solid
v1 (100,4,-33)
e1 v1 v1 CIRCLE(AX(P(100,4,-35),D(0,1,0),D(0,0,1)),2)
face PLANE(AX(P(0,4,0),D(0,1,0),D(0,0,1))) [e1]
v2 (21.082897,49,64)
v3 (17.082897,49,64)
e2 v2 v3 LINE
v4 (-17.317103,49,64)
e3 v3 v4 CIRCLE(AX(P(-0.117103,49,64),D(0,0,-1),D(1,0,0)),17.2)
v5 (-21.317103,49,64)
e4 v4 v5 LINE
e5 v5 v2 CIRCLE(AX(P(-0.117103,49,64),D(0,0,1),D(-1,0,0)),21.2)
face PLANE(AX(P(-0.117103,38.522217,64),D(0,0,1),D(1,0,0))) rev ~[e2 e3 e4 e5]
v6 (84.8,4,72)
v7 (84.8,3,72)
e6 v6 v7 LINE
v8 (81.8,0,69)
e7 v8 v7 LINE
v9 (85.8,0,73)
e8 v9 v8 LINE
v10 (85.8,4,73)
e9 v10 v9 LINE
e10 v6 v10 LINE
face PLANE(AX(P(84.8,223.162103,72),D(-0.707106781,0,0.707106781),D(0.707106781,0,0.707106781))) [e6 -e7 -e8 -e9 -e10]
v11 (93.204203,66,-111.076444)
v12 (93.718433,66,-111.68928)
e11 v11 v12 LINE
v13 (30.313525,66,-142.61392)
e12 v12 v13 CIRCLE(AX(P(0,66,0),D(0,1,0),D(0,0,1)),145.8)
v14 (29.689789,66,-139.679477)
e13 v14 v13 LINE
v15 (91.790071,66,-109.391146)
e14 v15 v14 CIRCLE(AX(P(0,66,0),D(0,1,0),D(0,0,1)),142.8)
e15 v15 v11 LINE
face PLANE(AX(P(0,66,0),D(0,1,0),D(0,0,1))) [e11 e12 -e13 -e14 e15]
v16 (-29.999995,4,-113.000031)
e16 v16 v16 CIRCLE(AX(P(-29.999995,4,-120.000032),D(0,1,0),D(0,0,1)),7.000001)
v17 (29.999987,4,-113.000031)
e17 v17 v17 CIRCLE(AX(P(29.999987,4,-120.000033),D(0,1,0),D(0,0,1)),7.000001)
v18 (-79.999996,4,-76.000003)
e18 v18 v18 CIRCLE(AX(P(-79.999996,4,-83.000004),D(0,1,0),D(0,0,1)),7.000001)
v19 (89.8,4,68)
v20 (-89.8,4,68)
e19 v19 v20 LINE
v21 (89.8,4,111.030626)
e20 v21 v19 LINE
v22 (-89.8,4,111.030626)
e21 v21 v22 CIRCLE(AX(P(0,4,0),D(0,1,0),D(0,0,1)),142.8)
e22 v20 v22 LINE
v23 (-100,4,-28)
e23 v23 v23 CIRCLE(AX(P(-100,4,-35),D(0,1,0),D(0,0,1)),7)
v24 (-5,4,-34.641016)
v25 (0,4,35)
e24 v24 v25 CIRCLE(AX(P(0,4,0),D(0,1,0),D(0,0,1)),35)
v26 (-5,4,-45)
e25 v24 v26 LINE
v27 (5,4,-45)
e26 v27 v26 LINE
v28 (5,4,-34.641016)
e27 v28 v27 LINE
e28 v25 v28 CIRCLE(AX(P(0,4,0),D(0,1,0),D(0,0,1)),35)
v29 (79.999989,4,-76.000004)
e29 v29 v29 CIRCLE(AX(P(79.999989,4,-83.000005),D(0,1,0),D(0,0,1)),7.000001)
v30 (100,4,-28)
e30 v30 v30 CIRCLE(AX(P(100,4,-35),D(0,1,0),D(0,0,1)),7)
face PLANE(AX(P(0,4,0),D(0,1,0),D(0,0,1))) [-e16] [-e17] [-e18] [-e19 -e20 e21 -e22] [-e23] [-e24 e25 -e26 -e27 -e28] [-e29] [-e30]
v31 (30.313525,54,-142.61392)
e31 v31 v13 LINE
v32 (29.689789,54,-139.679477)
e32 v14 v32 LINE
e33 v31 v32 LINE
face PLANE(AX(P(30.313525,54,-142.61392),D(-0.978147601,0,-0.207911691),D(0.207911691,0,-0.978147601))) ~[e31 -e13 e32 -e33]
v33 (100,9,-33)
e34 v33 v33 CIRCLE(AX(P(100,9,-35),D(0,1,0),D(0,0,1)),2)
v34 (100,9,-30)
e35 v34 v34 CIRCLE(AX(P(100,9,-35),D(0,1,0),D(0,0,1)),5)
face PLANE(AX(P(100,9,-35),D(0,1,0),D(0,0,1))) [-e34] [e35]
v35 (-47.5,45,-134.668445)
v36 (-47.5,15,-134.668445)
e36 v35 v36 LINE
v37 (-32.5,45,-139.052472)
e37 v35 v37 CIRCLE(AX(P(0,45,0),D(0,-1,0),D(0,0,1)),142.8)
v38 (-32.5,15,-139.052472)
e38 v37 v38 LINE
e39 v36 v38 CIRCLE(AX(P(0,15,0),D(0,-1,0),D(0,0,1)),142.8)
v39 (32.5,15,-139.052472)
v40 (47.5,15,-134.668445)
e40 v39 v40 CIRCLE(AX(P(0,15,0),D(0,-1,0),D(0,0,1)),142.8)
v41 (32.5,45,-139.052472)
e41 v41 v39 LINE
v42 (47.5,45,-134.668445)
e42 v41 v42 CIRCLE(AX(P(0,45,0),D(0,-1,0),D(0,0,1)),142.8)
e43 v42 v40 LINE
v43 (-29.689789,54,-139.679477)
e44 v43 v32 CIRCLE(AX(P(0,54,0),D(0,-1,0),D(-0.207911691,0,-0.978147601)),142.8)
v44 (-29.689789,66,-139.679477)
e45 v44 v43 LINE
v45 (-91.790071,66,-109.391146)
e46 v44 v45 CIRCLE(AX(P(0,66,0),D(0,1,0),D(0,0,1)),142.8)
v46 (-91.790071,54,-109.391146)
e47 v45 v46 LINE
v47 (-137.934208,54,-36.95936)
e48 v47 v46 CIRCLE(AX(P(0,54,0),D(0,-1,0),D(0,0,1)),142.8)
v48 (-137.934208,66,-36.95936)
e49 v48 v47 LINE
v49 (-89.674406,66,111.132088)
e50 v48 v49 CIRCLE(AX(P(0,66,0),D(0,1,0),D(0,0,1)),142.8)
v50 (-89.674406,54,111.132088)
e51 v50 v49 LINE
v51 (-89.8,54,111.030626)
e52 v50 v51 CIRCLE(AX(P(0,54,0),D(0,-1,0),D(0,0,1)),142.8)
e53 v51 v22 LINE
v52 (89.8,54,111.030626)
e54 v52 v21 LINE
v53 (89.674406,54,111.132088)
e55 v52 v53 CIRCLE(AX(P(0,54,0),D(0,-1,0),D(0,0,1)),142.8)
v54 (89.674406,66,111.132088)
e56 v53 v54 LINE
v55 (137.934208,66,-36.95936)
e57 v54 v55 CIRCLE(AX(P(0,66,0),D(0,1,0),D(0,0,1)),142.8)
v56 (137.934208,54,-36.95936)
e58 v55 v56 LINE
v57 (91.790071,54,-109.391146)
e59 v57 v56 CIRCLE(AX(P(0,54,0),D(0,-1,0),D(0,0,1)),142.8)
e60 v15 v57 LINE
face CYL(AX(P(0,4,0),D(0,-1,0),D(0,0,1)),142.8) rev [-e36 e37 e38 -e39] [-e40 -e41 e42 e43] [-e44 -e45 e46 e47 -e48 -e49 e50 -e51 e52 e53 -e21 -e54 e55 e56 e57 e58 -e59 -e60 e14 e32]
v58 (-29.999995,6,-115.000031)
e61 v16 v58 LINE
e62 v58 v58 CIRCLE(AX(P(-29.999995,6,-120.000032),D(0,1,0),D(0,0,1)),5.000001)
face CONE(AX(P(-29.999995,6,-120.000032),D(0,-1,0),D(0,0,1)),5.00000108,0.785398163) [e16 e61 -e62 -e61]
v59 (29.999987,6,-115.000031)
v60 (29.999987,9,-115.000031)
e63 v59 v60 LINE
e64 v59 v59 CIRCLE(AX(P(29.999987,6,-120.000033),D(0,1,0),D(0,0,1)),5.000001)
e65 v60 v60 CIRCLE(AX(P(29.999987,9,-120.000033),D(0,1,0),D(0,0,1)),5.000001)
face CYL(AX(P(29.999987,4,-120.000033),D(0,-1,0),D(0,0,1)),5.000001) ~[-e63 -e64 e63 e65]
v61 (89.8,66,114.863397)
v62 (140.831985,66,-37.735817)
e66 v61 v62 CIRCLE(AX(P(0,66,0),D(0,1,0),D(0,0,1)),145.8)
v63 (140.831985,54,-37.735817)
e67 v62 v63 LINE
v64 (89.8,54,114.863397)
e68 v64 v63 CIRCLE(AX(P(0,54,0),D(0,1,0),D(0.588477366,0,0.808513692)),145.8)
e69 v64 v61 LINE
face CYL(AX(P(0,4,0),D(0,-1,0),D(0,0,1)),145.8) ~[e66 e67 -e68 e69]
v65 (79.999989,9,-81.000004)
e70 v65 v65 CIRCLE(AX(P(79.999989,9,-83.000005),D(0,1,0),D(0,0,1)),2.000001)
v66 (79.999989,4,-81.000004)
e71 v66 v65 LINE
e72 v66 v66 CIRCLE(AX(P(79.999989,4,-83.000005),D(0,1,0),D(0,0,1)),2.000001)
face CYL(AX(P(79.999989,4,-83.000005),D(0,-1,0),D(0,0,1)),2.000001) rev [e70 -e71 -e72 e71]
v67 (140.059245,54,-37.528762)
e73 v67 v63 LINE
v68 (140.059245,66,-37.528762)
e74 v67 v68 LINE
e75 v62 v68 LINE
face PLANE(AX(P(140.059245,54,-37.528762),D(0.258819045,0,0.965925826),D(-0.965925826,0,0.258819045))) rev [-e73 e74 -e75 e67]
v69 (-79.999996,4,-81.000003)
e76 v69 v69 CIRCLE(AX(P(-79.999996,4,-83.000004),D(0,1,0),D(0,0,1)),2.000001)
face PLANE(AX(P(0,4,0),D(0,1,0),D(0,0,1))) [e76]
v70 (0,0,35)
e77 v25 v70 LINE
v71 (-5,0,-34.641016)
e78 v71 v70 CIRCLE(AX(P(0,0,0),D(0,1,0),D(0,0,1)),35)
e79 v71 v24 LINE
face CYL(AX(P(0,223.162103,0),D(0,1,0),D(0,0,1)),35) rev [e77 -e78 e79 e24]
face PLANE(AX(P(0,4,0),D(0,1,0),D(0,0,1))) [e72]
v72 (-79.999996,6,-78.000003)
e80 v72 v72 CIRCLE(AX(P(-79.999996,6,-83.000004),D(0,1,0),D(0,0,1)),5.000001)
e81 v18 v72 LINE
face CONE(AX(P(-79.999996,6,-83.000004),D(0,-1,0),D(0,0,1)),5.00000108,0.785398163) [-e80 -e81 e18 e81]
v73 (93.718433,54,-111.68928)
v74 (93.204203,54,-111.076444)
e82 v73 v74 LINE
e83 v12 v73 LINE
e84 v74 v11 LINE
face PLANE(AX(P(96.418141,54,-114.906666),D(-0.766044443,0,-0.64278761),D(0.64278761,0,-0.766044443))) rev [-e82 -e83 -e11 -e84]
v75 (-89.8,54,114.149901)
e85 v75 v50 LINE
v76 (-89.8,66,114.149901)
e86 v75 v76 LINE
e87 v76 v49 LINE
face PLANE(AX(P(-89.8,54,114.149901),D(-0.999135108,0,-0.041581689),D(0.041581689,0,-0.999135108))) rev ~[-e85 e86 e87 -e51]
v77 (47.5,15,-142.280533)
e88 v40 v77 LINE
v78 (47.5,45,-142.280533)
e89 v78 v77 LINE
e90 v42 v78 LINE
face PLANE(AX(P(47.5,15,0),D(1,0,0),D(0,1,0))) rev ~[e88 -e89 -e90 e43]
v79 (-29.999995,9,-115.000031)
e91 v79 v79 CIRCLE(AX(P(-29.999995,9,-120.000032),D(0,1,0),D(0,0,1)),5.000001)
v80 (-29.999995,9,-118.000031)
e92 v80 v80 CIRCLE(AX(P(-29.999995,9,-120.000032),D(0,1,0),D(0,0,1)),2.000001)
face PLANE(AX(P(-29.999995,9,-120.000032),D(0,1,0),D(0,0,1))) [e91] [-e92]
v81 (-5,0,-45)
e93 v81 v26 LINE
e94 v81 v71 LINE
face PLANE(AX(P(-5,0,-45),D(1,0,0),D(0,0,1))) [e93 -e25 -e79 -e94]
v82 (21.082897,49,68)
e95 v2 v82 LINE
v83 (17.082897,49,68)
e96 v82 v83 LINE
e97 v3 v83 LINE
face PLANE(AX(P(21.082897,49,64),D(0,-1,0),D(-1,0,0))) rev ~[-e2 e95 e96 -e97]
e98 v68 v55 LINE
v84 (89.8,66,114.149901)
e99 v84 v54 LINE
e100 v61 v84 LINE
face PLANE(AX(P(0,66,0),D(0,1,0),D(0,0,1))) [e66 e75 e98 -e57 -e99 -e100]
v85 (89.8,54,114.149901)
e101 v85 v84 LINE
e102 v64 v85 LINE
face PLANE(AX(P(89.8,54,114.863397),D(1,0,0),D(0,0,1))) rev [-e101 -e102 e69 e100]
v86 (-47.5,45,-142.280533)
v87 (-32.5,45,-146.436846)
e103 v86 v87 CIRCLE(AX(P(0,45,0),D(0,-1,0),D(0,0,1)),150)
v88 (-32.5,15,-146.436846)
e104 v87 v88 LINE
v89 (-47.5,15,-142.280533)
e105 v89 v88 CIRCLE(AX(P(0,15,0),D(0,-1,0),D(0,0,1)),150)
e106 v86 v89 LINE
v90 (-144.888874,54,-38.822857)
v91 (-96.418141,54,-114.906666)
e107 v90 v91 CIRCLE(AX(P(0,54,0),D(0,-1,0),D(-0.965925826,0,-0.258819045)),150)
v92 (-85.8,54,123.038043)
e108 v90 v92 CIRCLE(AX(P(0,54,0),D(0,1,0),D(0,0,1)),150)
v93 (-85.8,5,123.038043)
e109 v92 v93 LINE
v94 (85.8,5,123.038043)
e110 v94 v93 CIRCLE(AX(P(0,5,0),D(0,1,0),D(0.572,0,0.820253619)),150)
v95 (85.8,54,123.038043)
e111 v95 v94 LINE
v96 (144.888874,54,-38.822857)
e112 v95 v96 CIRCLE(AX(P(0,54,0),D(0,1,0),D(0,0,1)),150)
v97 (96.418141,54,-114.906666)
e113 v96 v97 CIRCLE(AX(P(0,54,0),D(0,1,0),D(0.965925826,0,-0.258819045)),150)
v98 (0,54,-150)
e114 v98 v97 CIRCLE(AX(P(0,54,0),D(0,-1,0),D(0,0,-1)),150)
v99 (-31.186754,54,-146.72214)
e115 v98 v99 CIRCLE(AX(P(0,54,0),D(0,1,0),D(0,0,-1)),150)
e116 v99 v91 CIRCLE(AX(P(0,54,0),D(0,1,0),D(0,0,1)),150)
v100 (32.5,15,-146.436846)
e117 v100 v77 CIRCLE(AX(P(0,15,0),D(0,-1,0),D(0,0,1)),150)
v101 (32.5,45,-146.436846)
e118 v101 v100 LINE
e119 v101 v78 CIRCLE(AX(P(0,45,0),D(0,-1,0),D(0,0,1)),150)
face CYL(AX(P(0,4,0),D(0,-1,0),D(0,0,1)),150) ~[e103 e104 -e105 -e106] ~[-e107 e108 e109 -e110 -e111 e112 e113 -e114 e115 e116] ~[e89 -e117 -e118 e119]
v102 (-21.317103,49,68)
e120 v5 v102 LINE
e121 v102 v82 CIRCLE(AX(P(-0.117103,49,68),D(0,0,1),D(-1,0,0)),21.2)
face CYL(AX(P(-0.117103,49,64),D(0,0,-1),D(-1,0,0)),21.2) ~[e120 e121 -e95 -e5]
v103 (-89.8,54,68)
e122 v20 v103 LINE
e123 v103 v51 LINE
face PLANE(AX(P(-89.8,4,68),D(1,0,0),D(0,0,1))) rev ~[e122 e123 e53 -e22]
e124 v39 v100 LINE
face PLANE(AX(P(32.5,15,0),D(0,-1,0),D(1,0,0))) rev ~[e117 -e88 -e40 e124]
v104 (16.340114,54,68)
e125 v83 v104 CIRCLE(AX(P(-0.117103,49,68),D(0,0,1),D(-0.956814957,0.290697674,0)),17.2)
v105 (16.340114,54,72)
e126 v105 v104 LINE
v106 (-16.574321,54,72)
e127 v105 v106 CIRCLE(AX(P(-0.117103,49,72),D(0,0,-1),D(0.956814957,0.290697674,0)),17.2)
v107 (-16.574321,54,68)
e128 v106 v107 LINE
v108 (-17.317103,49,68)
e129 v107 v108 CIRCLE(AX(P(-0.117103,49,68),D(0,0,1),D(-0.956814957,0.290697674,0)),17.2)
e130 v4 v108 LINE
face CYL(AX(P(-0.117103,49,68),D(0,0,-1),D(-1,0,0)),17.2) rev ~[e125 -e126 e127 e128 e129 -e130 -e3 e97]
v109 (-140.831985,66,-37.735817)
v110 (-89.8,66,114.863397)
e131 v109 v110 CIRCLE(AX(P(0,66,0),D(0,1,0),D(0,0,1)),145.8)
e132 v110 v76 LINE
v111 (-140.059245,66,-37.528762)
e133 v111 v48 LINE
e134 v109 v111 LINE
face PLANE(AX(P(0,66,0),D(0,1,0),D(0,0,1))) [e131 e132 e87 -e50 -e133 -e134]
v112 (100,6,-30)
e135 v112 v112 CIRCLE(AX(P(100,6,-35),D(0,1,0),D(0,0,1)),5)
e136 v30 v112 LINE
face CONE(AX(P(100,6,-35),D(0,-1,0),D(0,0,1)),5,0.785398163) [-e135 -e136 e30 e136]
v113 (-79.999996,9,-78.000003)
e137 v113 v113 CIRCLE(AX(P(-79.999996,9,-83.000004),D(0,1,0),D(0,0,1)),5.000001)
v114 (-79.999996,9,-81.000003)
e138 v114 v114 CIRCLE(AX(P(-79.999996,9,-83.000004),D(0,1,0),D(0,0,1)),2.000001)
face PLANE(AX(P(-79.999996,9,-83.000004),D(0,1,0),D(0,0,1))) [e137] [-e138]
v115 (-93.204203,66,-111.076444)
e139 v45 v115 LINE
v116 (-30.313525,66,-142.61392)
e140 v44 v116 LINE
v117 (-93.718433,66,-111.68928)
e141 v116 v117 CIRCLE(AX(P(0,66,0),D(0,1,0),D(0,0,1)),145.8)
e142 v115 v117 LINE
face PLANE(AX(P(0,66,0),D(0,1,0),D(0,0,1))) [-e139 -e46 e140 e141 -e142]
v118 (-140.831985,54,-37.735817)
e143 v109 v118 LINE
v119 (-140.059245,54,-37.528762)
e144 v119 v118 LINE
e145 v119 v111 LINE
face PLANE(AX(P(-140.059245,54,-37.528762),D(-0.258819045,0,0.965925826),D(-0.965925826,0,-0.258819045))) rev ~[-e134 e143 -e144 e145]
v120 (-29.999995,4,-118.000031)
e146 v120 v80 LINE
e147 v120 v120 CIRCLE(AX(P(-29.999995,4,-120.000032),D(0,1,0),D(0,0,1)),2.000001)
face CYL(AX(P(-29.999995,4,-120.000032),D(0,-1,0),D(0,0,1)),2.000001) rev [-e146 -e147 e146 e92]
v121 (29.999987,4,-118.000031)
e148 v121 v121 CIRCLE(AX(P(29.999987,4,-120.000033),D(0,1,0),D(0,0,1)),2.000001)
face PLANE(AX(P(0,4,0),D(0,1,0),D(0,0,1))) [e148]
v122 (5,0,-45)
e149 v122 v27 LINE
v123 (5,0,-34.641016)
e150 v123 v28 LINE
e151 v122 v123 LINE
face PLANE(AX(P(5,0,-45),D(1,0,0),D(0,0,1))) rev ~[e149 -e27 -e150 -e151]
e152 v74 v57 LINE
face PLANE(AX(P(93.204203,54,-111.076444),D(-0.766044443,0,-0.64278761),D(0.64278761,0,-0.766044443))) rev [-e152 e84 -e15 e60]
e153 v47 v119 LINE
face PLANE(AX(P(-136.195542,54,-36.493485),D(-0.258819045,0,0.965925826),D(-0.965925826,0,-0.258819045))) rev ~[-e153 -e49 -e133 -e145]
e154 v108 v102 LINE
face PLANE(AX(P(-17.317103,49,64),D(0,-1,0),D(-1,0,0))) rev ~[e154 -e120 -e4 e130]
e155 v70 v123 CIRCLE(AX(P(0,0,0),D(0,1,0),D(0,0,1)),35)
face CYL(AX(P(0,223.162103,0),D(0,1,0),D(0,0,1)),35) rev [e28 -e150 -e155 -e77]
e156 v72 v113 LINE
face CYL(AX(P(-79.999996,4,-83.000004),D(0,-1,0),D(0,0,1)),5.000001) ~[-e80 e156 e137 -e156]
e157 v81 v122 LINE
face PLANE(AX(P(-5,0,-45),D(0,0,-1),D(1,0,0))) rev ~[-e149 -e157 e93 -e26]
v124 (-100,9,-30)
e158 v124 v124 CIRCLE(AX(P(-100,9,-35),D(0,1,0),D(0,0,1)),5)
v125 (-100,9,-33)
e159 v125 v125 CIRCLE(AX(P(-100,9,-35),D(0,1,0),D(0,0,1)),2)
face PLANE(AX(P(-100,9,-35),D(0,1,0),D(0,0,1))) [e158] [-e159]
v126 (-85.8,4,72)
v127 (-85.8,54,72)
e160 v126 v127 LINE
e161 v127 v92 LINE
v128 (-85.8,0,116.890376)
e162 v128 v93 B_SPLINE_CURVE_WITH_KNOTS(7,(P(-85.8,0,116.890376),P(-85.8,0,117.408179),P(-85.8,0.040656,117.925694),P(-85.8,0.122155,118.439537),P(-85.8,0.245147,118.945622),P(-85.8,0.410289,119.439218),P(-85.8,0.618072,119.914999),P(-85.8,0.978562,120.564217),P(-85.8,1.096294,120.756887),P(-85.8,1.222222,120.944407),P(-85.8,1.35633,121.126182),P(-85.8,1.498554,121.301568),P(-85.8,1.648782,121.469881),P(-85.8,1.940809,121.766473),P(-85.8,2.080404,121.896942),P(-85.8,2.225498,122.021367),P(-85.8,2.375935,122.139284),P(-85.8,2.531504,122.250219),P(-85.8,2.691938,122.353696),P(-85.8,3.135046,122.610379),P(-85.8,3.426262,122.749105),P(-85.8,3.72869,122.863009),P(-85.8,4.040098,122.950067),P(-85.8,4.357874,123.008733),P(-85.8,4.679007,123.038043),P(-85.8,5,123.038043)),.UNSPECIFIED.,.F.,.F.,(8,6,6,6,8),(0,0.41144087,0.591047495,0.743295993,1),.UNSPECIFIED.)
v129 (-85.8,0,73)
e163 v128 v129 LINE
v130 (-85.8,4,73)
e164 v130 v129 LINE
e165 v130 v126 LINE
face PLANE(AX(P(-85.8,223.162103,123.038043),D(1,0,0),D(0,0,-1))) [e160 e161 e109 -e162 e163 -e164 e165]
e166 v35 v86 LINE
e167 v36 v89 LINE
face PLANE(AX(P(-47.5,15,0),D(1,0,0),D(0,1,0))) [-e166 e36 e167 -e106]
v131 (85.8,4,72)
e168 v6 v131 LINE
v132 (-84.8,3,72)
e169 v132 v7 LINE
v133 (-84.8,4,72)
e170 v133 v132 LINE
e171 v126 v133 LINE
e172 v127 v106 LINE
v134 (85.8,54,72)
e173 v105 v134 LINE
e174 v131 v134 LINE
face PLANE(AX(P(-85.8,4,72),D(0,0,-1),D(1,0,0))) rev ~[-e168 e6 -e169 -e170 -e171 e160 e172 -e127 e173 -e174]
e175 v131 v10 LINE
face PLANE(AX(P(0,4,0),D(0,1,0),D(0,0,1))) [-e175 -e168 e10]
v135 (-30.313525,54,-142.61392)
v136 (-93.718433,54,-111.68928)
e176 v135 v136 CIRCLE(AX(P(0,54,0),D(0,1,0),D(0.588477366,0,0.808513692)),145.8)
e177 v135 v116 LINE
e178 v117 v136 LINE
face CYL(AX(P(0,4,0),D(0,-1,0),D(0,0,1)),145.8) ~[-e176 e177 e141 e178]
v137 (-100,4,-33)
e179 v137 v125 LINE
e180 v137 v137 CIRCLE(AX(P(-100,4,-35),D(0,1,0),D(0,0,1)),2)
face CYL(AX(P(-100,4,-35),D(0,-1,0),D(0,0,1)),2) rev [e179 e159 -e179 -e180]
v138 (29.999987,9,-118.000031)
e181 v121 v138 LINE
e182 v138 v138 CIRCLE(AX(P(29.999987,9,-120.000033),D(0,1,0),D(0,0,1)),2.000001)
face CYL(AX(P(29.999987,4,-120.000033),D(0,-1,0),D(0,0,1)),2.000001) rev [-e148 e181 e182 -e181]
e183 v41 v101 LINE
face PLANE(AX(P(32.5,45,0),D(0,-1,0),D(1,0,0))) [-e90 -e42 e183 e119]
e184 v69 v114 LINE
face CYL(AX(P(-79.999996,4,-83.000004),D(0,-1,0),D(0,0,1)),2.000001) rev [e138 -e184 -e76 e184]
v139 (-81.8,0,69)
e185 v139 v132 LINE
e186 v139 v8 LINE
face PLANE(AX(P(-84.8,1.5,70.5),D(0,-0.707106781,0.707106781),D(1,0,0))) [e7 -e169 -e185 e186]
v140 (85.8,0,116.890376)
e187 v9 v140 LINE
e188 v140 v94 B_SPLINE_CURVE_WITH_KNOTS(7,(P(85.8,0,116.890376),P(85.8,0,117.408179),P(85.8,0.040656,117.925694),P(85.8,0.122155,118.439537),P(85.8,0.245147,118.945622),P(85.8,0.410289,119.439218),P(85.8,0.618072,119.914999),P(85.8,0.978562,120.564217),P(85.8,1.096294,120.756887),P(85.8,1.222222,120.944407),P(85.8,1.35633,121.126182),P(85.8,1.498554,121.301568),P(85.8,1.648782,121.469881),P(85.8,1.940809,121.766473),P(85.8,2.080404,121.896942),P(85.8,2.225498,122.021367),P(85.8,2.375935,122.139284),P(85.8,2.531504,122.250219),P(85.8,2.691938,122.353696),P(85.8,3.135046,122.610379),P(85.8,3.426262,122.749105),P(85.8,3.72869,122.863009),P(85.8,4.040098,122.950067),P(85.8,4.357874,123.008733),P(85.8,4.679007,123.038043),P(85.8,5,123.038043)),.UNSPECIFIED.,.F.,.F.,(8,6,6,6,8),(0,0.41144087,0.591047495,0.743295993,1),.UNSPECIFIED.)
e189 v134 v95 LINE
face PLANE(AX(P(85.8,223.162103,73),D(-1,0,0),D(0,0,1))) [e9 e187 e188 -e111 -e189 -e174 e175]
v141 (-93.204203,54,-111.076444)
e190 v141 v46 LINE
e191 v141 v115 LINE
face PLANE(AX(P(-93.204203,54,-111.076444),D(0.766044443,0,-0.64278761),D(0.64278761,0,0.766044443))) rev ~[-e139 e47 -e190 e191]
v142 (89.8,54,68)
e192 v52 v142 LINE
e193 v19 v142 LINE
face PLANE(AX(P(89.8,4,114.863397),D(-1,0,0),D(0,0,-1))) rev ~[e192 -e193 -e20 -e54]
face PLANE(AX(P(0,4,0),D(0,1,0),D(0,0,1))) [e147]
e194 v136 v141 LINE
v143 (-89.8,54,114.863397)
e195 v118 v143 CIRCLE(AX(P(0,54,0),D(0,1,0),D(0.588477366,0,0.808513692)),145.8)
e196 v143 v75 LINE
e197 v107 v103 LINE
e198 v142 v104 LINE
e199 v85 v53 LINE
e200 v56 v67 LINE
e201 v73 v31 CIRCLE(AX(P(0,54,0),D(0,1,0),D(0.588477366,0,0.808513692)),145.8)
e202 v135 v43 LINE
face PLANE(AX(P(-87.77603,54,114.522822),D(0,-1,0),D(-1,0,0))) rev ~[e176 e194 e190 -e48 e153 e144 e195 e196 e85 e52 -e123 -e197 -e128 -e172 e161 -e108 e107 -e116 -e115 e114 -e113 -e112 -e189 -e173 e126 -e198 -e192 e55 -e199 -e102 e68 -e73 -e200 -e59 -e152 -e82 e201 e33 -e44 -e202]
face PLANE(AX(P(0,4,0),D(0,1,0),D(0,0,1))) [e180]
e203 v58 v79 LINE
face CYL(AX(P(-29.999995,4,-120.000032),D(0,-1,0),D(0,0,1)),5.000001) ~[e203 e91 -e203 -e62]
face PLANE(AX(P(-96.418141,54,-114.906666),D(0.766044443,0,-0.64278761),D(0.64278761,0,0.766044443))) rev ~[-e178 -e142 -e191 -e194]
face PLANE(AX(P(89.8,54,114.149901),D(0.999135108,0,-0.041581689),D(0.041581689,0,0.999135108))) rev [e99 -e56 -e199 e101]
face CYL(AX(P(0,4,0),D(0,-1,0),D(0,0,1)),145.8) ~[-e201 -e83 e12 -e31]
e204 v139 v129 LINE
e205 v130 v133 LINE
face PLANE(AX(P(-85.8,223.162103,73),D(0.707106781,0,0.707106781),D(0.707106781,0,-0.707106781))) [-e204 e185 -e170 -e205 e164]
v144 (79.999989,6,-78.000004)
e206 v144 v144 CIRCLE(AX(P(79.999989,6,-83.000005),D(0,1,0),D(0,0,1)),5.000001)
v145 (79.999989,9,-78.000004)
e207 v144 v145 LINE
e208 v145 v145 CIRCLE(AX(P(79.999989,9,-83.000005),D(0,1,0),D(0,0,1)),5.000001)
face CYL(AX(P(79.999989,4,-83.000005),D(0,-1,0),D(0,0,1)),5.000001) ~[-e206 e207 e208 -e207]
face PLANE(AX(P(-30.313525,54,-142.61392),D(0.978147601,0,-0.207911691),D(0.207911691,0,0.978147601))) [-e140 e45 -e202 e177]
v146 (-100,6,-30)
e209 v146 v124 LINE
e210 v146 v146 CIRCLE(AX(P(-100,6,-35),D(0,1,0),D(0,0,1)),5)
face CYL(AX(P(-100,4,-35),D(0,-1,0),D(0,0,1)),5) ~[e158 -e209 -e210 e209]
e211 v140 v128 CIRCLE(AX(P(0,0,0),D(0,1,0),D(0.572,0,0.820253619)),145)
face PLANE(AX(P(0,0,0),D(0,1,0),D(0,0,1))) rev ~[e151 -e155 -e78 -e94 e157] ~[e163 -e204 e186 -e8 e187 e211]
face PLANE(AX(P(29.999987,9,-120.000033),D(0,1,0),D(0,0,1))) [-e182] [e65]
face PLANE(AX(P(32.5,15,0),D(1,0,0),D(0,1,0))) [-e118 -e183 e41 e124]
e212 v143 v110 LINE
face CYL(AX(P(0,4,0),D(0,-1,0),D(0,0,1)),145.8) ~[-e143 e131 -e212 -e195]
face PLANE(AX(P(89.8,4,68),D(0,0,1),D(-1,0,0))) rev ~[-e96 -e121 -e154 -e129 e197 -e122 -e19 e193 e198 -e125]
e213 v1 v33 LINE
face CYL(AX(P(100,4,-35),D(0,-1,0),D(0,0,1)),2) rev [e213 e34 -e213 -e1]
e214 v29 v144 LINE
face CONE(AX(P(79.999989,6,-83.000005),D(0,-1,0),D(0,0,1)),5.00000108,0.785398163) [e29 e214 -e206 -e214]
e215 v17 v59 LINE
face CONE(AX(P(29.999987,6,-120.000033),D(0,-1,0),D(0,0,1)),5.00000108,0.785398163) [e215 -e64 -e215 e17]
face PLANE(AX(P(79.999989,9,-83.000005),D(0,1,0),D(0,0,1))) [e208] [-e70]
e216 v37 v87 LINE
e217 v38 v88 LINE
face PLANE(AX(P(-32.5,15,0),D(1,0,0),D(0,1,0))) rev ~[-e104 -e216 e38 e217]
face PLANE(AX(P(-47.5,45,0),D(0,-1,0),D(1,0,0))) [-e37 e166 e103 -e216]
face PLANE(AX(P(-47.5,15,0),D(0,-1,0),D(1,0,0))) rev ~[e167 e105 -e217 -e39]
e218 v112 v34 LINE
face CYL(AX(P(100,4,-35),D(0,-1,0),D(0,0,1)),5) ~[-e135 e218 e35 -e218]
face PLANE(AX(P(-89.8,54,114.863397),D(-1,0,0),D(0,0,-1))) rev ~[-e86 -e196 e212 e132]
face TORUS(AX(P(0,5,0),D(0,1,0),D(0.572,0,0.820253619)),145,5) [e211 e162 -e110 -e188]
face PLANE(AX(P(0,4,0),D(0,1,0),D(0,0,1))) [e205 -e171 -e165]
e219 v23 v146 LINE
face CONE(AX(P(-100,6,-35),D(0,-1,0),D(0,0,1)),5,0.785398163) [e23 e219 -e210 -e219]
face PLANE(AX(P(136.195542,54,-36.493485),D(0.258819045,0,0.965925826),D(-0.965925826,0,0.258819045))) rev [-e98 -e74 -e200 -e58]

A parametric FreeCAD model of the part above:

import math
import FreeCAD as App
import Part
import Sketcher

V = App.Vector
Q = App.Units.Quantity


def edges_at(feature, points):
    """Names of the edges that pass closest to the given points."""
    edges = feature.Shape.Edges
    near = lambda p: min(range(len(edges)), key=lambda i: edges[i].distToShape(Part.Vertex(*p))[0])
    return sorted({f"Edge{near(p) + 1}" for p in points})


def add_polygon(sketch, points):
    """Adds a closed chain of lines whose ends are joined by coincident constraints."""
    first, n = sketch.GeometryCount, len(points)
    for a, b in zip(points, points[1:] + points[:1]):
        sketch.addGeometry(Part.LineSegment(App.Vector(*a, 0), App.Vector(*b, 0)), False)
    for i in range(n):
        sketch.addConstraint(Sketcher.Constraint("Coincident", first + i, 2, first + (i + 1) % n, 1))

doc = App.newDocument("Part")
params = doc.addObject("Spreadsheet::Sheet", "Params")
for row, (alias, value) in enumerate([
    ("sketch1_diameter", "300 mm"),
    ("pad1_length", "4 mm"),
    ("sketch2_diameter", "300 mm"),
    ("sketch2_diameter2", "291.6 mm"),
    ("pad2_length", "50 mm"),
    ("sketch3_diameter", "291.6 mm"),
    ("sketch3_diameter2", "285.6 mm"),
    ("pad3_length", "62 mm"),
    ("sketch4_radius", "150 mm"),
    ("sketch4_width", "169.6 mm"),
    ("sketch5_radius", "145.800002 mm"),
    ("sketch5_width", "171.6 mm"),
    ("sketch5_width2", "179.6 mm"),
    ("pad4_length", "50 mm"),
    ("sketch6_radius", "145.800002 mm"),
    ("pocket2_length", "12 mm"),
    ("fillet_radius", "5 mm"),
    ("sketch7_diameter", "70 mm"),
    ("sketch8_radius", "150 mm"),
    ("sketch8_radius2", "142 mm"),
    ("sketch8_radius3", "141 mm"),
    ("sketch8_length", "4 mm"),
    ("sketch8_length2", "4.2 mm"),
    ("pocket4_length", "25 mm"),
    ("sketch9_width", "10 mm"),
    ("sketch9_height", "20 mm"),
    ("pocket5_length", "25 mm"),
    ("sketch10_diameter", "34.4 mm"),
    ("pocket6_length", "25 mm"),
    ("sketch11_radius", "17.2 mm"),
    ("sketch11_radius2", "21.2 mm"),
    ("pad5_length", "4 mm"),
    ("sketch12_diameter", "10 mm"),
    ("sketch12_diameter2", "4 mm"),
    ("pad6_length", "5 mm"),
    ("chamfer_size", "2 mm"),
    ("chamfer2_size", "3 mm"),
    ("sketch13_width", "15 mm"),
    ("sketch13_height", "30 mm"),
], start=1):
    params.set(f"A{row}", alias)
    params.set(f"B{row}", "=" + value)
    params.setAlias(f"B{row}", alias)

body = doc.addObject("PartDesign::Body", "Body")

# Sketch on XZ plane
sketch1 = body.newObject("Sketcher::SketchObject", "Sketch")
sketch1.AttachmentSupport = (doc.getObject("XZ_Plane"), [""])
sketch1.MapMode = "FlatFace"
sketch1.addGeometry(Part.Circle(V(0, 0, 0), V(0, 0, 1), 150), False)
sketch1.addConstraint([
    Sketcher.Constraint("Coincident", 0, 3, -1, 1),
    Sketcher.Constraint("Diameter", 0, 300.0),
])
sketch1.setExpression("Constraints[1]", "Params.sketch1_diameter")
pad1 = body.newObject("PartDesign::Pad", "Pad")
pad1.Profile = sketch1
pad1.setExpression("Length", "Params.pad1_length")
pad1.Reversed = True

# Sketch on XZ plane
sketch2 = body.newObject("Sketcher::SketchObject", "Sketch001")
sketch2.AttachmentSupport = (doc.getObject("XZ_Plane"), [""])
sketch2.MapMode = "FlatFace"
sketch2.AttachmentOffset = App.Placement(V(0, 0, -4), App.Rotation())
sketch2.addGeometry([
    Part.Circle(V(0, 0, 0), V(0, 0, 1), 150),
    Part.Circle(V(0, 0, 0), V(0, 0, 1), 146),
], False)
sketch2.addConstraint([
    Sketcher.Constraint("Coincident", 0, 3, -1, 1),
    Sketcher.Constraint("Coincident", 1, 3, -1, 1),
    Sketcher.Constraint("Diameter", 0, 300.0),
    Sketcher.Constraint("Diameter", 1, 291.6),
])
sketch2.setExpression("Constraints[2]", "Params.sketch2_diameter")
sketch2.setExpression("Constraints[3]", "Params.sketch2_diameter2")
pad2 = body.newObject("PartDesign::Pad", "Pad001")
pad2.Profile = sketch2
pad2.setExpression("Length", "Params.pad2_length")
pad2.Reversed = True

# Sketch on XZ plane
sketch3 = body.newObject("Sketcher::SketchObject", "Sketch002")
sketch3.AttachmentSupport = (doc.getObject("XZ_Plane"), [""])
sketch3.MapMode = "FlatFace"
sketch3.AttachmentOffset = App.Placement(V(0, 0, -4), App.Rotation())
sketch3.addGeometry([
    Part.Circle(V(0, 0, 0), V(0, 0, 1), 146),
    Part.Circle(V(0, 0, 0), V(0, 0, 1), 143),
], False)
sketch3.addConstraint([
    Sketcher.Constraint("Coincident", 0, 3, -1, 1),
    Sketcher.Constraint("Coincident", 1, 3, -1, 1),
    Sketcher.Constraint("Diameter", 0, 291.6),
    Sketcher.Constraint("Diameter", 1, 285.6),
])
sketch3.setExpression("Constraints[2]", "Params.sketch3_diameter")
sketch3.setExpression("Constraints[3]", "Params.sketch3_diameter2")
pad3 = body.newObject("PartDesign::Pad", "Pad002")
pad3.Profile = sketch3
pad3.setExpression("Length", "Params.pad3_length")
pad3.Reversed = True

# Sketch on XZ plane
sketch4 = body.newObject("Sketcher::SketchObject", "Sketch003")
sketch4.AttachmentSupport = (doc.getObject("XZ_Plane"), [""])
sketch4.MapMode = "FlatFace"
sketch4.addGeometry([
    Part.LineSegment(V(85.8, 73, 0), V(85.8, 123, 0)),  # 0
    Part.ArcOfCircle(Part.Circle(V(0, 0, 0), V(0, 0, 1), 150), math.radians(55), math.radians(125)),  # 1
    Part.LineSegment(V(-85.8, 123, 0), V(-85.8, 73, 0)),  # 2
    Part.LineSegment(V(-85.8, 73, 0), V(-84.8, 72, 0)),  # 3
    Part.LineSegment(V(-84.8, 72, 0), V(84.8, 72, 0)),  # 4
    Part.LineSegment(V(84.8, 72, 0), V(85.8, 73, 0)),  # 5
], False)
sketch4.addConstraint([
    Sketcher.Constraint("Coincident", 0, 2, 1, 1),
    Sketcher.Constraint("Coincident", 1, 2, 2, 1),
    Sketcher.Constraint("Coincident", 2, 2, 3, 1),
    Sketcher.Constraint("Coincident", 3, 2, 4, 1),
    Sketcher.Constraint("Coincident", 4, 2, 5, 1),
    Sketcher.Constraint("Coincident", 5, 2, 0, 1),
    Sketcher.Constraint("Vertical", 0),
    Sketcher.Constraint("Vertical", 2),
    Sketcher.Constraint("Horizontal", 4),
    Sketcher.Constraint("Coincident", 1, 3, -1, 1),
    Sketcher.Constraint("Symmetric", 2, 2, 5, 2, -2),
    Sketcher.Constraint("Perpendicular", 3, 5),
    Sketcher.Constraint("Equal", 3, 5),
    Sketcher.Constraint("Radius", 1, 150.0),
    Sketcher.Constraint("DistanceX", 4, 1, 4, 2, 169.6),
    Sketcher.Constraint("DistanceY", -1, 1, 2, 2, 73.0),
    Sketcher.Constraint("DistanceY", -1, 1, 3, 2, 72.0),
])
sketch4.setExpression("Constraints[13]", "Params.sketch4_radius")
sketch4.setExpression("Constraints[14]", "Params.sketch4_width")
pocket1 = body.newObject("PartDesign::Pocket", "Pocket")
pocket1.Profile = sketch4
pocket1.Type = "ThroughAll"
pocket1.Midplane = True

# Sketch on XZ plane
sketch5 = body.newObject("Sketcher::SketchObject", "Sketch004")
sketch5.AttachmentSupport = (doc.getObject("XZ_Plane"), [""])
sketch5.MapMode = "FlatFace"
sketch5.AttachmentOffset = App.Placement(V(0, 0, -4), App.Rotation())
sketch5.addGeometry([
    Part.ArcOfCircle(Part.Circle(V(0, 0, 0), V(0, 0, 1), 146), math.radians(126.05), math.radians(128.02)),  # 0
    Part.LineSegment(V(-86, 118, 0), V(-86, 72, 0)),  # 1
    Part.LineSegment(V(-86, 72, 0), V(86, 72, 0)),  # 2
    Part.LineSegment(V(86, 72, 0), V(86, 118, 0)),  # 3
    Part.ArcOfCircle(Part.Circle(V(0, 0, 0), V(0, 0, 1), 146), math.radians(51.98), math.radians(53.95)),  # 4
    Part.LineSegment(V(90, 115, 0), V(90, 68, 0)),  # 5
    Part.LineSegment(V(90, 68, 0), V(-90, 68, 0)),  # 6
    Part.LineSegment(V(-90, 68, 0), V(-90, 115, 0)),  # 7
], False)
sketch5.addConstraint([
    Sketcher.Constraint("Coincident", 0, 1, 1, 1),
    Sketcher.Constraint("Coincident", 1, 2, 2, 1),
    Sketcher.Constraint("Coincident", 2, 2, 3, 1),
    Sketcher.Constraint("Coincident", 3, 2, 4, 2),
    Sketcher.Constraint("Coincident", 4, 1, 5, 1),
    Sketcher.Constraint("Coincident", 5, 2, 6, 1),
    Sketcher.Constraint("Coincident", 6, 2, 7, 1),
    Sketcher.Constraint("Coincident", 7, 2, 0, 2),
    Sketcher.Constraint("Vertical", 1),
    Sketcher.Constraint("Horizontal", 2),
    Sketcher.Constraint("Vertical", 3),
    Sketcher.Constraint("Vertical", 5),
    Sketcher.Constraint("Horizontal", 6),
    Sketcher.Constraint("Vertical", 7),
    Sketcher.Constraint("Coincident", 0, 3, -1, 1),
    Sketcher.Constraint("Coincident", 4, 3, -1, 1),
    Sketcher.Constraint("Equal", 0, 4),
    Sketcher.Constraint("Horizontal", 0, 1, 3, 2),
    Sketcher.Constraint("Horizontal", 4, 1, 7, 2),
    Sketcher.Constraint("Radius", 0, 145.800002),
    Sketcher.Constraint("DistanceX", 2, 1, 2, 2, 171.6),
    Sketcher.Constraint("DistanceX", 6, 2, 6, 1, 179.6),
    Sketcher.Constraint("DistanceY", -1, 1, 1, 2, 72.0),
    Sketcher.Constraint("DistanceY", -1, 1, 5, 2, 68.0),
])
sketch5.setExpression("Constraints[19]", "Params.sketch5_radius")
sketch5.setExpression("Constraints[20]", "Params.sketch5_width")
sketch5.setExpression("Constraints[21]", "Params.sketch5_width2")
pad4 = body.newObject("PartDesign::Pad", "Pad003")
pad4.Profile = sketch5
pad4.setExpression("Length", "Params.pad4_length")
pad4.Reversed = True

# Sketch on XZ plane
sketch6 = body.newObject("Sketcher::SketchObject", "Sketch005")
sketch6.AttachmentSupport = (doc.getObject("XZ_Plane"), [""])
sketch6.MapMode = "FlatFace"
sketch6.AttachmentOffset = App.Placement(V(0, 0, -54), App.Rotation())
sketch6.addGeometry([
    Part.LineSegment(V(-89.7, 111.1, 0), V(-89.8, 114.1, 0)),  # 0
    Part.LineSegment(V(-89.8, 114.1, 0), V(-89.8, 114.9, 0)),  # 1
    Part.ArcOfCircle(Part.Circle(V(0, 0, 0), V(0, 0, 1), 145.8), math.radians(126.05), math.radians(128.02)),  # 2
    Part.LineSegment(V(-85.8, 117.9, 0), V(-85.8, 114.1, 0)),  # 3
    Part.ArcOfCircle(Part.Circle(V(0, 0, 0), V(0, 0, 1), 142.8), math.radians(126.93), math.radians(128.9)),  # 4
], False)
sketch6.addConstraint([
    Sketcher.Constraint("Coincident", 0, 2, 1, 1),
    Sketcher.Constraint("Coincident", 1, 2, 2, 2),
    Sketcher.Constraint("Coincident", 2, 1, 3, 1),
    Sketcher.Constraint("Coincident", 3, 2, 4, 1),
    Sketcher.Constraint("Coincident", 4, 2, 0, 1),
    Sketcher.Constraint("Vertical", 1),
    Sketcher.Constraint("Vertical", 3),
    Sketcher.Constraint("Coincident", 2, 3, -1, 1),
    Sketcher.Constraint("Coincident", 4, 3, -1, 1),
    Sketcher.Constraint("Horizontal", 0, 2, 3, 2),
    Sketcher.Constraint("Radius", 2, 145.800002),
    Sketcher.Constraint("DistanceX", 1, 2, 2, 1, 4.0),
    Sketcher.Constraint("DistanceX", 0, 2, -1, 1, 89.8),
    Sketcher.Constraint("Radius", 4, 142.799997),
    Sketcher.Constraint("DistanceY", 4, 2, 1, 2, 3.731309),
])
sketch6.setExpression("Constraints[10]", "Params.sketch6_radius")
pocket2 = body.newObject("PartDesign::Pocket", "Pocket001")
pocket2.Profile = sketch6
pocket2.setExpression("Length", "Params.pocket2_length")
doc.recompute()

mirrored = body.newObject("PartDesign::Mirrored", "Mirrored")
mirrored.Originals = [pocket2]
mirrored.MirrorPlane = (doc.getObject("YZ_Plane"), [""])
body.Tip = mirrored
doc.recompute()

fillet = body.newObject("PartDesign::Fillet", "Fillet")
fillet.Base = (mirrored, edges_at(mirrored, [(0, 0, -150)]))
fillet.setExpression("Radius", "Params.fillet_radius")

# Sketch on XZ plane
sketch7 = body.newObject("Sketcher::SketchObject", "Sketch006")
sketch7.AttachmentSupport = (doc.getObject("XZ_Plane"), [""])
sketch7.MapMode = "FlatFace"
sketch7.addGeometry(Part.Circle(V(0, 0, 0), V(0, 0, 1), 35), False)
sketch7.addConstraint([
    Sketcher.Constraint("Coincident", 0, 3, -1, 1),
    Sketcher.Constraint("Diameter", 0, 70.0),
])
sketch7.setExpression("Constraints[1]", "Params.sketch7_diameter")
pocket3 = body.newObject("PartDesign::Pocket", "Pocket002")
pocket3.Profile = sketch7
pocket3.Type = "ThroughAll"
pocket3.Midplane = True

# Sketch on XZ plane
sketch8 = body.newObject("Sketcher::SketchObject", "Sketch007")
sketch8.AttachmentSupport = (doc.getObject("XZ_Plane"), [""])
sketch8.MapMode = "FlatFace"
sketch8.AttachmentOffset = App.Placement(V(0, 0, -54), App.Rotation())
sketch8.addGeometry([
    Part.ArcOfCircle(Part.Circle(V(0, 0, 0), V(0, 0, 1), 150), math.radians(-102), math.radians(-90)),  # 0
    Part.LineSegment(V(-31.2, -146.7, 0), V(-30.3, -142.6, 0)),  # 1
    Part.LineSegment(V(-30.3, -142.6, 0), V(-29.5, -138.9, 0)),  # 2
    Part.ArcOfCircle(Part.Circle(V(0, 0, 0), V(0, 0, 1), 142), math.radians(-102), math.radians(-90)),  # 3
    Part.LineSegment(V(0, -142, 0), V(0, -150, 0)),  # 4
    Part.ArcOfCircle(Part.Circle(V(0, 0, 0), V(0, 0, 1), 141), math.radians(-165), math.radians(-130)),  # 5
    Part.LineSegment(V(-90.6, -108, 0), V(-93.2, -111.1, 0)),  # 6
    Part.LineSegment(V(-93.2, -111.1, 0), V(-96.4, -114.9, 0)),  # 7
    Part.ArcOfCircle(Part.Circle(V(0, 0, 0), V(0, 0, 1), 150), math.radians(-165), math.radians(-130)),  # 8
    Part.LineSegment(V(-144.9, -38.8, 0), V(-140.1, -37.5, 0)),  # 9
    Part.LineSegment(V(-140.1, -37.5, 0), V(-136.2, -36.5, 0)),  # 10
], False)
sketch8.addConstraint([
    Sketcher.Constraint("Coincident", 0, 1, 1, 1),
    Sketcher.Constraint("Coincident", 1, 2, 2, 1),
    Sketcher.Constraint("Coincident", 2, 2, 3, 1),
    Sketcher.Constraint("Coincident", 3, 2, 4, 1),
    Sketcher.Constraint("Coincident", 4, 2, 0, 2),
    Sketcher.Constraint("Coincident", 5, 2, 6, 1),
    Sketcher.Constraint("Coincident", 6, 2, 7, 1),
    Sketcher.Constraint("Coincident", 7, 2, 8, 2),
    Sketcher.Constraint("Coincident", 8, 1, 9, 1),
    Sketcher.Constraint("Coincident", 9, 2, 10, 1),
    Sketcher.Constraint("Coincident", 10, 2, 5, 1),
    Sketcher.Constraint("Vertical", 4),
    Sketcher.Constraint("Coincident", 0, 3, -1, 1),
    Sketcher.Constraint("Coincident", 3, 3, -1, 1),
    Sketcher.Constraint("Coincident", 5, 3, -1, 1),
    Sketcher.Constraint("Coincident", 8, 3, -1, 1),
    Sketcher.Constraint("Equal", 0, 8),
    Sketcher.Constraint("PointOnObject", 3, 2, -2),
    Sketcher.Constraint("Parallel", 1, 2),
    Sketcher.Constraint("Parallel", 6, 7),
    Sketcher.Constraint("Parallel", 9, 10),
    Sketcher.Constraint("Equal", 7, 9),
    Sketcher.Constraint("Radius", 0, 150.0),
    Sketcher.Constraint("Radius", 3, 142.0),
    Sketcher.Constraint("Radius", 5, 141.0),
    Sketcher.Constraint("Angle", 1, Q("78 deg")),
    Sketcher.Constraint("Angle", 6, Q("-130 deg")),
    Sketcher.Constraint("Angle", 9, Q("15 deg")),
    Sketcher.Constraint("Distance", 6, 4.0),
    Sketcher.Constraint("Distance", 1, 4.2),
    Sketcher.Constraint("DistanceX", 5, 2, 0, 1, 59.446299),
    Sketcher.Constraint("DistanceX", 10, 2, 7, 2, 39.7774),
    Sketcher.Constraint("DistanceY", 1, 2, -1, 1, 142.61392),
])
sketch8.setExpression("Constraints[22]", "Params.sketch8_radius")
sketch8.setExpression("Constraints[23]", "Params.sketch8_radius2")
sketch8.setExpression("Constraints[24]", "Params.sketch8_radius3")
sketch8.setExpression("Constraints[28]", "Params.sketch8_length")
sketch8.setExpression("Constraints[29]", "Params.sketch8_length2")
pocket4 = body.newObject("PartDesign::Pocket", "Pocket003")
pocket4.Profile = sketch8
pocket4.setExpression("Length", "Params.pocket4_length")
doc.recompute()

mirrored2 = body.newObject("PartDesign::Mirrored", "Mirrored001")
mirrored2.Originals = [pocket4]
mirrored2.MirrorPlane = (doc.getObject("YZ_Plane"), [""])
body.Tip = mirrored2

# Sketch on XZ plane
sketch9 = body.newObject("Sketcher::SketchObject", "Sketch008")
sketch9.AttachmentSupport = (doc.getObject("XZ_Plane"), [""])
sketch9.MapMode = "FlatFace"
add_polygon(sketch9, [(-5, -25), (-5, -45), (5, -45), (5, -25)])  # lines 0-3
sketch9.addConstraint([
    Sketcher.Constraint("Vertical", 0),
    Sketcher.Constraint("Horizontal", 1),
    Sketcher.Constraint("Vertical", 2),
    Sketcher.Constraint("Horizontal", 3),
    Sketcher.Constraint("DistanceX", 1, 1, 1, 2, 10.0),
    Sketcher.Constraint("DistanceY", 0, 2, 0, 1, 20.0),
    Sketcher.Constraint("DistanceX", 0, 2, -1, 1, 5.0),
    Sketcher.Constraint("DistanceY", 0, 2, -1, 1, 45.0),
])
sketch9.setExpression("Constraints[8]", "Params.sketch9_width")
sketch9.setExpression("Constraints[9]", "Params.sketch9_height")
pocket5 = body.newObject("PartDesign::Pocket", "Pocket004")
pocket5.Profile = sketch9
pocket5.setExpression("Length", "Params.pocket5_length")

# Sketch on XY plane
sketch10 = body.newObject("Sketcher::SketchObject", "Sketch009")
sketch10.AttachmentSupport = (doc.getObject("XY_Plane"), [""])
sketch10.MapMode = "FlatFace"
sketch10.AttachmentOffset = App.Placement(V(0, 0, 68), App.Rotation())
sketch10.addGeometry(Part.Circle(V(0, 49, 0), V(0, 0, 1), 17), False)
sketch10.addConstraint([
    Sketcher.Constraint("Diameter", 0, 34.4),
    Sketcher.Constraint("DistanceY", -1, 1, 0, 3, 49.0),
    Sketcher.Constraint("DistanceX", 0, 3, -1, 1, 0.117103),
])
sketch10.setExpression("Constraints[0]", "Params.sketch10_diameter")
pocket6 = body.newObject("PartDesign::Pocket", "Pocket005")
pocket6.Profile = sketch10
pocket6.setExpression("Length", "Params.pocket6_length")
pocket6.Reversed = True

# Sketch on XY plane
sketch11 = body.newObject("Sketcher::SketchObject", "Sketch010")
sketch11.AttachmentSupport = (doc.getObject("XY_Plane"), [""])
sketch11.MapMode = "FlatFace"
sketch11.AttachmentOffset = App.Placement(V(0, 0, 64), App.Rotation())
sketch11.addGeometry([
    Part.LineSegment(V(-21.3, 49, 0), V(-17.3, 49, 0)),
    Part.ArcOfCircle(Part.Circle(V(-0.1, 49, 0), V(0, 0, 1), 17.2), math.radians(180), math.radians(360)),
    Part.LineSegment(V(17.1, 49, 0), V(21.1, 49, 0)),
    Part.ArcOfCircle(Part.Circle(V(-0.1, 49, 0), V(0, 0, 1), 21.2), math.radians(180), math.radians(360)),
], False)
sketch11.addConstraint([
    Sketcher.Constraint("Coincident", 0, 2, 1, 1),
    Sketcher.Constraint("Coincident", 1, 2, 2, 1),
    Sketcher.Constraint("Coincident", 2, 2, 3, 2),
    Sketcher.Constraint("Coincident", 3, 1, 0, 1),
    Sketcher.Constraint("Horizontal", 0),
    Sketcher.Constraint("Horizontal", 2),
    Sketcher.Constraint("Coincident", 3, 3, 1, 3),
    Sketcher.Constraint("Horizontal", 3, 3, 0, 2),
    Sketcher.Constraint("Horizontal", 0, 2, 1, 2),
    Sketcher.Constraint("Radius", 1, 17.2),
    Sketcher.Constraint("Radius", 3, 21.2),
    Sketcher.Constraint("DistanceY", -1, 1, 1, 3, 49.0),
    Sketcher.Constraint("DistanceX", 1, 3, -1, 1, 0.117103),
])
sketch11.setExpression("Constraints[9]", "Params.sketch11_radius")
sketch11.setExpression("Constraints[10]", "Params.sketch11_radius2")
pad5 = body.newObject("PartDesign::Pad", "Pad004")
pad5.Profile = sketch11
pad5.setExpression("Length", "Params.pad5_length")

# Sketch on XZ plane
sketch12 = body.newObject("Sketcher::SketchObject", "Sketch011")
sketch12.AttachmentSupport = (doc.getObject("XZ_Plane"), [""])
sketch12.MapMode = "FlatFace"
sketch12.AttachmentOffset = App.Placement(V(0, 0, -4), App.Rotation())
sketch12.addGeometry([
    Part.Circle(V(100, -35, 0), V(0, 0, 1), 5),  # 0
    Part.Circle(V(100, -35, 0), V(0, 0, 1), 2),  # 1
    Part.Circle(V(-100, -35, 0), V(0, 0, 1), 5),  # 2
    Part.Circle(V(-100, -35, 0), V(0, 0, 1), 2),  # 3
    Part.Circle(V(-79.999996, -83.000004, 0), V(0, 0, 1), 5.000001),  # 4
    Part.Circle(V(-79.999996, -83.000004, 0), V(0, 0, 1), 2.000001),  # 5
    Part.Circle(V(-29.999995, -120.000032, 0), V(0, 0, 1), 5.000001),  # 6
    Part.Circle(V(-29.999995, -120.000032, 0), V(0, 0, 1), 2.000001),  # 7
    Part.Circle(V(29.999987, -120.000033, 0), V(0, 0, 1), 5.000001),  # 8
    Part.Circle(V(29.999987, -120.000033, 0), V(0, 0, 1), 2.000001),  # 9
    Part.Circle(V(79.999989, -83.000005, 0), V(0, 0, 1), 5.000001),  # 10
    Part.Circle(V(79.999989, -83.000005, 0), V(0, 0, 1), 2.000001),  # 11
], False)
sketch12.addConstraint([
    Sketcher.Constraint("Coincident", 1, 3, 0, 3),
    Sketcher.Constraint("Coincident", 3, 3, 2, 3),
    Sketcher.Constraint("Coincident", 5, 3, 4, 3),
    Sketcher.Constraint("Coincident", 7, 3, 6, 3),
    Sketcher.Constraint("Coincident", 9, 3, 8, 3),
    Sketcher.Constraint("Coincident", 11, 3, 10, 3),
    Sketcher.Constraint("Equal", 0, 2),
    Sketcher.Constraint("Equal", 1, 3),
    Sketcher.Constraint("Equal", 2, 4),
    Sketcher.Constraint("Equal", 3, 5),
    Sketcher.Constraint("Equal", 4, 6),
    Sketcher.Constraint("Equal", 5, 7),
    Sketcher.Constraint("Equal", 6, 8),
    Sketcher.Constraint("Equal", 7, 9),
    Sketcher.Constraint("Equal", 8, 10),
    Sketcher.Constraint("Equal", 9, 11),
    Sketcher.Constraint("Symmetric", 0, 3, 2, 3, -2),
    Sketcher.Constraint("Symmetric", 6, 3, 8, 3, -2),
    Sketcher.Constraint("Symmetric", 4, 3, 10, 3, -2),
    Sketcher.Constraint("Diameter", 0, 10.0),
    Sketcher.Constraint("Diameter", 1, 4.0),
    Sketcher.Constraint("DistanceX", -1, 1, 0, 3, 100.0),
    Sketcher.Constraint("DistanceY", 0, 3, -1, 1, 35.0),
    Sketcher.Constraint("DistanceX", 4, 3, 6, 3, 50.000001),
    Sketcher.Constraint("DistanceY", 6, 3, -1, 1, 120.000032),
    Sketcher.Constraint("DistanceX", -1, 1, 10, 3, 79.999989),
    Sketcher.Constraint("DistanceY", 6, 3, 4, 3, 37.000028),
])
sketch12.setExpression("Constraints[19]", "Params.sketch12_diameter")
sketch12.setExpression("Constraints[20]", "Params.sketch12_diameter2")
pad6 = body.newObject("PartDesign::Pad", "Pad005")
pad6.Profile = sketch12
pad6.setExpression("Length", "Params.pad6_length")
pad6.Reversed = True
doc.recompute()

chamfer = body.newObject("PartDesign::Chamfer", "Chamfer")
chamfer.Base = (pad6, edges_at(pad6, [
    (100, 4, -40),
    (-80, 4, -88),
    (-100, 4, -40),
    (-30, 4, -125),
    (30, 4, -125),
    (80, 4, -88),
]))
chamfer.setExpression("Size", "Params.chamfer_size")
doc.recompute()

chamfer2 = body.newObject("PartDesign::Chamfer", "Chamfer001")
chamfer2.Base = (chamfer, edges_at(chamfer, [(0, 0, 72)]))
chamfer2.setExpression("Size", "Params.chamfer2_size")

# Sketch on XY plane
sketch13 = body.newObject("Sketcher::SketchObject", "Sketch012")
sketch13.AttachmentSupport = (doc.getObject("XY_Plane"), [""])
sketch13.MapMode = "FlatFace"
add_polygon(sketch13, [(-48, 45), (-48, 15), (-32, 15), (-32, 45)])  # lines 0-3
add_polygon(sketch13, [(32, 45), (32, 15), (48, 15), (48, 45)])  # lines 4-7
sketch13.addConstraint([
    Sketcher.Constraint("Vertical", 0),
    Sketcher.Constraint("Horizontal", 1),
    Sketcher.Constraint("Vertical", 2),
    Sketcher.Constraint("Horizontal", 3),
    Sketcher.Constraint("Vertical", 4),
    Sketcher.Constraint("Horizontal", 5),
    Sketcher.Constraint("Vertical", 6),
    Sketcher.Constraint("Horizontal", 7),
    Sketcher.Constraint("Symmetric", 1, 2, 4, 2, -2),
    Sketcher.Constraint("Symmetric", 3, 2, 6, 2, -2),
    Sketcher.Constraint("DistanceX", 1, 1, 1, 2, 15.0),
    Sketcher.Constraint("DistanceY", 0, 2, 0, 1, 30.0),
    Sketcher.Constraint("DistanceY", -1, 1, 0, 2, 15.0),
    Sketcher.Constraint("DistanceX", 1, 2, 4, 2, 65.0),
])
sketch13.setExpression("Constraints[18]", "Params.sketch13_width")
sketch13.setExpression("Constraints[19]", "Params.sketch13_height")
pocket7 = body.newObject("PartDesign::Pocket", "Pocket006")
pocket7.Profile = sketch13
pocket7.Type = "ThroughAll"

doc.recompute()
